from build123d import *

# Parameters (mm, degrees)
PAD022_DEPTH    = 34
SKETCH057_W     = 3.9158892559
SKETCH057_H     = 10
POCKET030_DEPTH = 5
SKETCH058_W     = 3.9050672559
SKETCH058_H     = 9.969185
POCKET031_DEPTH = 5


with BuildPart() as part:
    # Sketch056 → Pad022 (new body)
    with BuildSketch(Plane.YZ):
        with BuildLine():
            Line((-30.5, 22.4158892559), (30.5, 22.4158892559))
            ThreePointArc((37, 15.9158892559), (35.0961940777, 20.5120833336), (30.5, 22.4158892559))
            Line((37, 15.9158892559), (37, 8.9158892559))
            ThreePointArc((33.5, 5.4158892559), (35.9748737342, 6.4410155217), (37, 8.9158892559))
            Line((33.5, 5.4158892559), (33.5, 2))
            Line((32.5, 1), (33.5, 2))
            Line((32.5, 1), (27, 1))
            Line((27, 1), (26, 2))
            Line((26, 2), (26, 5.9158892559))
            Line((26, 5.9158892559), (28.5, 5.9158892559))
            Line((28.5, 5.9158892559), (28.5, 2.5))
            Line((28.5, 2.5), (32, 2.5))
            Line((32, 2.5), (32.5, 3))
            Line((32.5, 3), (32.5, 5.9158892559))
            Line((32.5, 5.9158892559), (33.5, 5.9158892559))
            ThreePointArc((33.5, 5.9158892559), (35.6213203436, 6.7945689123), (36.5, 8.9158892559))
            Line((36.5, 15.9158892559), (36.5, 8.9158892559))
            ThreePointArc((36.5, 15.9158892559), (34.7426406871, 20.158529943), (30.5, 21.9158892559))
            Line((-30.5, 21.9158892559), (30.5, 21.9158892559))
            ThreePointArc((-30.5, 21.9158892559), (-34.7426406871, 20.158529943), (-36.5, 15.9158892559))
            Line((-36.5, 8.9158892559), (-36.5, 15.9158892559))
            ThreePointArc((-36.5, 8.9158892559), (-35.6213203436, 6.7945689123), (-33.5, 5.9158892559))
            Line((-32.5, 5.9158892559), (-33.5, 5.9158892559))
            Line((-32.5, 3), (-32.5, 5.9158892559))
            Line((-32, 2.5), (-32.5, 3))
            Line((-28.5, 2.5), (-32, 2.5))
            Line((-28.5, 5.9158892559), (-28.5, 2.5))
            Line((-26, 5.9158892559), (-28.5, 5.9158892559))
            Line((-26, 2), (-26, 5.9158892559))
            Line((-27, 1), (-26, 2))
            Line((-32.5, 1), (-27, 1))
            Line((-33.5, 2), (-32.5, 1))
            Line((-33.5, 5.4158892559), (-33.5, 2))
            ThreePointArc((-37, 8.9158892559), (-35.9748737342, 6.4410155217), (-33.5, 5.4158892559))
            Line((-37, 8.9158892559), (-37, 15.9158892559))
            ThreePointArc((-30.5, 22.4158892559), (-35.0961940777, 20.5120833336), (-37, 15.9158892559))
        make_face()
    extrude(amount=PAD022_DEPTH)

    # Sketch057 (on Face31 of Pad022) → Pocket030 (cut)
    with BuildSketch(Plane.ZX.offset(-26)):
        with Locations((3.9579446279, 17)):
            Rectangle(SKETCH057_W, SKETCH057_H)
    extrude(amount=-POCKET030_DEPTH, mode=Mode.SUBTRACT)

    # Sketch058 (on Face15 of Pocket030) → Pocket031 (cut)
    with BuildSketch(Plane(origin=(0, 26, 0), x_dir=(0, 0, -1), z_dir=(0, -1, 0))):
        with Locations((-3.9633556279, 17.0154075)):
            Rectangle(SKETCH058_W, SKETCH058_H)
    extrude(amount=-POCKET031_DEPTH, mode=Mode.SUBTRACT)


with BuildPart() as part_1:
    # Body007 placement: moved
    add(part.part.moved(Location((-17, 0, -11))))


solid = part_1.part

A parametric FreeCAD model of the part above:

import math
import FreeCAD as App
import Part
import Sketcher

V = App.Vector
Q = App.Units.Quantity

doc = App.newDocument("Part")
body = doc.addObject("PartDesign::Body", "Body")

# Sketch on YZ plane
sketch1 = body.newObject("Sketcher::SketchObject", "Sketch")
sketch1.AttachmentSupport = (doc.getObject("YZ_Plane"), [""])
sketch1.MapMode = "FlatFace"
sketch1.addGeometry([
    Part.LineSegment(V(30.5, 22.4, 0), V(-30.5, 22.4, 0)),  # 0
    Part.ArcOfCircle(Part.Circle(V(-30.5, 15.9, 0), V(0, 0, 1), 6.5), math.radians(90), math.radians(180)),  # 1
    Part.LineSegment(V(-37, 15.9, 0), V(-37, 8.9, 0)),  # 2
    Part.ArcOfCircle(Part.Circle(V(-33.5, 8.9, 0), V(0, 0, 1), 3.5), math.radians(180), math.radians(270)),  # 3
    Part.LineSegment(V(-33.5, 5.4, 0), V(-33.5, 2, 0)),  # 4
    Part.LineSegment(V(-33.5, 2, 0), V(-32.5, 1, 0)),  # 5
    Part.LineSegment(V(-32.5, 1, 0), V(-27, 1, 0)),  # 6
    Part.LineSegment(V(-27, 1, 0), V(-26, 2, 0)),  # 7
    Part.LineSegment(V(-26, 2, 0), V(-26, 5.9, 0)),  # 8
    Part.LineSegment(V(-26, 5.9, 0), V(-28.5, 5.9, 0)),  # 9
    Part.LineSegment(V(-28.5, 5.9, 0), V(-28.5, 2.5, 0)),  # 10
    Part.LineSegment(V(-28.5, 2.5, 0), V(-32, 2.5, 0)),  # 11
    Part.LineSegment(V(-32, 2.5, 0), V(-32.5, 3, 0)),  # 12
    Part.LineSegment(V(-32.5, 3, 0), V(-32.5, 5.9, 0)),  # 13
    Part.LineSegment(V(-32.5, 5.9, 0), V(-33.5, 5.9, 0)),  # 14
    Part.ArcOfCircle(Part.Circle(V(-33.5, 8.9, 0), V(0, 0, 1), 3), math.radians(180), math.radians(270)),  # 15
    Part.LineSegment(V(-36.5, 8.9, 0), V(-36.5, 15.9, 0)),  # 16
    Part.ArcOfCircle(Part.Circle(V(-30.5, 15.9, 0), V(0, 0, 1), 6), math.radians(90), math.radians(180)),  # 17
    Part.LineSegment(V(-30.5, 21.9, 0), V(30.5, 21.9, 0)),  # 18
    Part.ArcOfCircle(Part.Circle(V(30.5, 15.9, 0), V(0, 0, 1), 6), math.radians(0), math.radians(90)),  # 19
    Part.LineSegment(V(36.5, 15.9, 0), V(36.5, 8.9, 0)),  # 20
    Part.ArcOfCircle(Part.Circle(V(33.5, 8.9, 0), V(0, 0, 1), 3), math.radians(-90), math.radians(0)),  # 21
    Part.LineSegment(V(33.5, 5.9, 0), V(32.5, 5.9, 0)),  # 22
    Part.LineSegment(V(32.5, 5.9, 0), V(32.5, 3, 0)),  # 23
    Part.LineSegment(V(32.5, 3, 0), V(32, 2.5, 0)),  # 24
    Part.LineSegment(V(32, 2.5, 0), V(28.5, 2.5, 0)),  # 25
    Part.LineSegment(V(28.5, 2.5, 0), V(28.5, 5.9, 0)),  # 26
    Part.LineSegment(V(28.5, 5.9, 0), V(26, 5.9, 0)),  # 27
    Part.LineSegment(V(26, 5.9, 0), V(26, 2, 0)),  # 28
    Part.LineSegment(V(26, 2, 0), V(27, 1, 0)),  # 29
    Part.LineSegment(V(27, 1, 0), V(32.5, 1, 0)),  # 30
    Part.LineSegment(V(32.5, 1, 0), V(33.5, 2, 0)),  # 31
    Part.LineSegment(V(33.5, 2, 0), V(33.5, 5.4, 0)),  # 32
    Part.ArcOfCircle(Part.Circle(V(33.5, 8.9, 0), V(0, 0, 1), 3.5), math.radians(-90), math.radians(0)),  # 33
    Part.LineSegment(V(37, 8.9, 0), V(37, 15.9, 0)),  # 34
    Part.ArcOfCircle(Part.Circle(V(30.5, 15.9, 0), V(0, 0, 1), 6.5), math.radians(0), math.radians(90)),  # 35
], False)
sketch1.addConstraint([
    Sketcher.Constraint("Tangent", 0, 2, 1, 1),
    Sketcher.Constraint("Tangent", 1, 2, 2, 1),
    Sketcher.Constraint("Tangent", 2, 2, 3, 1),
    Sketcher.Constraint("Coincident", 3, 2, 4, 1),
    Sketcher.Constraint("Coincident", 4, 2, 5, 1),
    Sketcher.Constraint("Coincident", 5, 2, 6, 1),
    Sketcher.Constraint("Coincident", 6, 2, 7, 1),
    Sketcher.Constraint("Coincident", 7, 2, 8, 1),
    Sketcher.Constraint("Coincident", 8, 2, 9, 1),
    Sketcher.Constraint("Coincident", 9, 2, 10, 1),
    Sketcher.Constraint("Coincident", 10, 2, 11, 1),
    Sketcher.Constraint("Coincident", 11, 2, 12, 1),
    Sketcher.Constraint("Coincident", 12, 2, 13, 1),
    Sketcher.Constraint("Coincident", 13, 2, 14, 1),
    Sketcher.Constraint("Tangent", 14, 2, 15, 2),
    Sketcher.Constraint("Tangent", 15, 1, 16, 1),
    Sketcher.Constraint("Tangent", 16, 2, 17, 2),
    Sketcher.Constraint("Tangent", 17, 1, 18, 1),
    Sketcher.Constraint("Tangent", 18, 2, 19, 2),
    Sketcher.Constraint("Tangent", 19, 1, 20, 1),
    Sketcher.Constraint("Tangent", 20, 2, 21, 2),
    Sketcher.Constraint("Tangent", 21, 1, 22, 1),
    Sketcher.Constraint("Coincident", 22, 2, 23, 1),
    Sketcher.Constraint("Coincident", 23, 2, 24, 1),
    Sketcher.Constraint("Coincident", 24, 2, 25, 1),
    Sketcher.Constraint("Coincident", 25, 2, 26, 1),
    Sketcher.Constraint("Coincident", 26, 2, 27, 1),
    Sketcher.Constraint("Coincident", 27, 2, 28, 1),
    Sketcher.Constraint("Coincident", 28, 2, 29, 1),
    Sketcher.Constraint("Coincident", 29, 2, 30, 1),
    Sketcher.Constraint("Coincident", 30, 2, 31, 1),
    Sketcher.Constraint("Coincident", 31, 2, 32, 1),
    Sketcher.Constraint("Coincident", 32, 2, 33, 1),
    Sketcher.Constraint("Tangent", 33, 2, 34, 1),
    Sketcher.Constraint("Tangent", 34, 2, 35, 1),
    Sketcher.Constraint("Tangent", 35, 2, 0, 1),
    Sketcher.Constraint("Horizontal", 0),
    Sketcher.Constraint("Vertical", 2),
    Sketcher.Constraint("Vertical", 4),
    Sketcher.Constraint("Horizontal", 6),
    Sketcher.Constraint("Vertical", 8),
    Sketcher.Constraint("Horizontal", 9),
    Sketcher.Constraint("Vertical", 10),
    Sketcher.Constraint("Horizontal", 11),
    Sketcher.Constraint("Vertical", 13),
    Sketcher.Constraint("Horizontal", 14),
    Sketcher.Constraint("Vertical", 16),
    Sketcher.Constraint("Horizontal", 18),
    Sketcher.Constraint("Vertical", 20),
    Sketcher.Constraint("Horizontal", 22),
    Sketcher.Constraint("Vertical", 23),
    Sketcher.Constraint("Horizontal", 25),
    Sketcher.Constraint("Vertical", 26),
    Sketcher.Constraint("Horizontal", 27),
    Sketcher.Constraint("Vertical", 28),
    Sketcher.Constraint("Horizontal", 30),
    Sketcher.Constraint("Vertical", 32),
    Sketcher.Constraint("Vertical", 34),
    Sketcher.Constraint("Coincident", 15, 3, 3, 3),
    Sketcher.Constraint("Coincident", 17, 3, 1, 3),
    Sketcher.Constraint("Coincident", 33, 3, 21, 3),
    Sketcher.Constraint("Coincident", 35, 3, 19, 3),
    Sketcher.Constraint("Equal", 17, 19),
    Sketcher.Constraint("Equal", 15, 21),
    Sketcher.Constraint("Symmetric", 3, 3, 21, 3, -2),
    Sketcher.Constraint("Symmetric", 12, 2, 23, 2, -2),
    Sketcher.Constraint("Symmetric", 11, 2, 24, 2, -2),
    Sketcher.Constraint("Symmetric", 9, 2, 26, 2, -2),
    Sketcher.Constraint("Symmetric", 7, 2, 28, 2, -2),
    Sketcher.Constraint("Symmetric", 6, 2, 29, 2, -2),
    Sketcher.Constraint("Symmetric", 4, 2, 31, 2, -2),
    Sketcher.Constraint("Perpendicular", 5, 7),
    Sketcher.Constraint("Perpendicular", 7, 12),
    Sketcher.Constraint("Perpendicular", 12, 24),
    Sketcher.Constraint("Perpendicular", 29, 31),
    Sketcher.Constraint("Horizontal", 4, 2, 7, 2),
    Sketcher.Constraint("Horizontal", 9, 2, 13, 2),
    Sketcher.Constraint("Vertical", 15, 3, 3, 2),
    Sketcher.Constraint("Vertical", 5, 2, 12, 2),
    Sketcher.Constraint("Equal", 4, 10),
    Sketcher.Constraint("Radius", 15, Q("3 mm")),
    Sketcher.Constraint("Radius", 17, Q("6 mm")),
    Sketcher.Constraint("Radius", 1, Q("6.5 mm")),
    Sketcher.Constraint("DistanceX", 0, 2, 0, 1, Q("61 mm")),
    Sketcher.Constraint("DistanceX", 14, 2, 14, 1, Q("1 mm")),
    Sketcher.Constraint("DistanceY", 2, 2, 2, 1, Q("7 mm")),
    Sketcher.Constraint("DistanceX", 6, 1, 6, 2, Q("5.5 mm")),
    Sketcher.Constraint("DistanceX", 9, 2, 9, 1, Q("2.5 mm")),
    Sketcher.Constraint("DistanceX", 11, 2, 11, 1, Q("3.5 mm")),
    Sketcher.Constraint("DistanceY", -1, 1, 4, 2, Q("2 mm")),
    Sketcher.Constraint("DistanceY", 4, 2, 4, 1, Q("3.415889 mm")),
])
pad1 = body.newObject("PartDesign::Pad", "Pad")
pad1.Profile = sketch1
pad1.Length = 34

# Sketch on XZ plane
sketch2 = body.newObject("Sketcher::SketchObject", "Sketch001")
sketch2.AttachmentSupport = (doc.getObject("XZ_Plane"), [""])
sketch2.MapMode = "FlatFace"
sketch2.AttachmentOffset = App.Placement(V(0, 0, 26), App.Rotation())
sketch2.addGeometry([
    Part.LineSegment(V(22, 2, 0), V(12, 2, 0)),
    Part.LineSegment(V(12, 2, 0), V(12, 5.9, 0)),
    Part.LineSegment(V(12, 5.9, 0), V(22, 5.9, 0)),
    Part.LineSegment(V(22, 5.9, 0), V(22, 2, 0)),
], False)
sketch2.addConstraint([
    Sketcher.Constraint("Coincident", 0, 2, 1, 1),
    Sketcher.Constraint("Coincident", 1, 2, 2, 1),
    Sketcher.Constraint("Coincident", 2, 2, 3, 1),
    Sketcher.Constraint("Coincident", 3, 2, 0, 1),
    Sketcher.Constraint("Horizontal", 0),
    Sketcher.Constraint("Vertical", 1),
    Sketcher.Constraint("Horizontal", 2),
    Sketcher.Constraint("Vertical", 3),
    Sketcher.Constraint("DistanceX", 0, 2, 0, 1, Q("10 mm")),
    Sketcher.Constraint("DistanceX", -1, 1, 0, 2, Q("12 mm")),
    Sketcher.Constraint("DistanceY", -1, 1, 0, 2, Q("2 mm")),
    Sketcher.Constraint("DistanceY", 1, 1, 1, 2, Q("3.915889 mm")),
])
pocket1 = body.newObject("PartDesign::Pocket", "Pocket")
pocket1.Profile = sketch2
pocket1.Length = 5
pocket1.Reversed = True

# Sketch on XZ plane
sketch3 = body.newObject("Sketcher::SketchObject", "Sketch002")
sketch3.AttachmentSupport = (doc.getObject("XZ_Plane"), [""])
sketch3.MapMode = "FlatFace"
sketch3.AttachmentOffset = App.Placement(V(0, 0, -26), App.Rotation())
sketch3.addGeometry([
    Part.LineSegment(V(22, 5.9, 0), V(12, 5.9, 0)),
    Part.LineSegment(V(12, 5.9, 0), V(12, 2, 0)),
    Part.LineSegment(V(12, 2, 0), V(22, 2, 0)),
    Part.LineSegment(V(22, 2, 0), V(22, 5.9, 0)),
], False)
sketch3.addConstraint([
    Sketcher.Constraint("Coincident", 0, 2, 1, 1),
    Sketcher.Constraint("Coincident", 1, 2, 2, 1),
    Sketcher.Constraint("Coincident", 2, 2, 3, 1),
    Sketcher.Constraint("Coincident", 3, 2, 0, 1),
    Sketcher.Constraint("Horizontal", 0),
    Sketcher.Constraint("Vertical", 1),
    Sketcher.Constraint("Horizontal", 2),
    Sketcher.Constraint("Vertical", 3),
    Sketcher.Constraint("DistanceX", -1, 1, 2, 2, Q("22 mm")),
    Sketcher.Constraint("DistanceX", 0, 2, 0, 1, Q("9.969185 mm")),
    Sketcher.Constraint("DistanceY", 1, 2, 1, 1, Q("3.905067 mm")),
    Sketcher.Constraint("DistanceY", -1, 1, 0, 2, Q("5.915889 mm")),
])
pocket2 = body.newObject("PartDesign::Pocket", "Pocket001")
pocket2.Profile = sketch3
pocket2.Length = 5
body2 = doc.addObject("PartDesign::Body", "Body001")
doc.recompute()

body.Placement = App.Placement(V(-17, 0, -11), App.Rotation(V(0, 0, 1), 0))
boolean = body2.newObject("PartDesign::Boolean", "Boolean")
boolean.Type = "Fuse"
boolean.addObjects([body])

doc.recompute()
